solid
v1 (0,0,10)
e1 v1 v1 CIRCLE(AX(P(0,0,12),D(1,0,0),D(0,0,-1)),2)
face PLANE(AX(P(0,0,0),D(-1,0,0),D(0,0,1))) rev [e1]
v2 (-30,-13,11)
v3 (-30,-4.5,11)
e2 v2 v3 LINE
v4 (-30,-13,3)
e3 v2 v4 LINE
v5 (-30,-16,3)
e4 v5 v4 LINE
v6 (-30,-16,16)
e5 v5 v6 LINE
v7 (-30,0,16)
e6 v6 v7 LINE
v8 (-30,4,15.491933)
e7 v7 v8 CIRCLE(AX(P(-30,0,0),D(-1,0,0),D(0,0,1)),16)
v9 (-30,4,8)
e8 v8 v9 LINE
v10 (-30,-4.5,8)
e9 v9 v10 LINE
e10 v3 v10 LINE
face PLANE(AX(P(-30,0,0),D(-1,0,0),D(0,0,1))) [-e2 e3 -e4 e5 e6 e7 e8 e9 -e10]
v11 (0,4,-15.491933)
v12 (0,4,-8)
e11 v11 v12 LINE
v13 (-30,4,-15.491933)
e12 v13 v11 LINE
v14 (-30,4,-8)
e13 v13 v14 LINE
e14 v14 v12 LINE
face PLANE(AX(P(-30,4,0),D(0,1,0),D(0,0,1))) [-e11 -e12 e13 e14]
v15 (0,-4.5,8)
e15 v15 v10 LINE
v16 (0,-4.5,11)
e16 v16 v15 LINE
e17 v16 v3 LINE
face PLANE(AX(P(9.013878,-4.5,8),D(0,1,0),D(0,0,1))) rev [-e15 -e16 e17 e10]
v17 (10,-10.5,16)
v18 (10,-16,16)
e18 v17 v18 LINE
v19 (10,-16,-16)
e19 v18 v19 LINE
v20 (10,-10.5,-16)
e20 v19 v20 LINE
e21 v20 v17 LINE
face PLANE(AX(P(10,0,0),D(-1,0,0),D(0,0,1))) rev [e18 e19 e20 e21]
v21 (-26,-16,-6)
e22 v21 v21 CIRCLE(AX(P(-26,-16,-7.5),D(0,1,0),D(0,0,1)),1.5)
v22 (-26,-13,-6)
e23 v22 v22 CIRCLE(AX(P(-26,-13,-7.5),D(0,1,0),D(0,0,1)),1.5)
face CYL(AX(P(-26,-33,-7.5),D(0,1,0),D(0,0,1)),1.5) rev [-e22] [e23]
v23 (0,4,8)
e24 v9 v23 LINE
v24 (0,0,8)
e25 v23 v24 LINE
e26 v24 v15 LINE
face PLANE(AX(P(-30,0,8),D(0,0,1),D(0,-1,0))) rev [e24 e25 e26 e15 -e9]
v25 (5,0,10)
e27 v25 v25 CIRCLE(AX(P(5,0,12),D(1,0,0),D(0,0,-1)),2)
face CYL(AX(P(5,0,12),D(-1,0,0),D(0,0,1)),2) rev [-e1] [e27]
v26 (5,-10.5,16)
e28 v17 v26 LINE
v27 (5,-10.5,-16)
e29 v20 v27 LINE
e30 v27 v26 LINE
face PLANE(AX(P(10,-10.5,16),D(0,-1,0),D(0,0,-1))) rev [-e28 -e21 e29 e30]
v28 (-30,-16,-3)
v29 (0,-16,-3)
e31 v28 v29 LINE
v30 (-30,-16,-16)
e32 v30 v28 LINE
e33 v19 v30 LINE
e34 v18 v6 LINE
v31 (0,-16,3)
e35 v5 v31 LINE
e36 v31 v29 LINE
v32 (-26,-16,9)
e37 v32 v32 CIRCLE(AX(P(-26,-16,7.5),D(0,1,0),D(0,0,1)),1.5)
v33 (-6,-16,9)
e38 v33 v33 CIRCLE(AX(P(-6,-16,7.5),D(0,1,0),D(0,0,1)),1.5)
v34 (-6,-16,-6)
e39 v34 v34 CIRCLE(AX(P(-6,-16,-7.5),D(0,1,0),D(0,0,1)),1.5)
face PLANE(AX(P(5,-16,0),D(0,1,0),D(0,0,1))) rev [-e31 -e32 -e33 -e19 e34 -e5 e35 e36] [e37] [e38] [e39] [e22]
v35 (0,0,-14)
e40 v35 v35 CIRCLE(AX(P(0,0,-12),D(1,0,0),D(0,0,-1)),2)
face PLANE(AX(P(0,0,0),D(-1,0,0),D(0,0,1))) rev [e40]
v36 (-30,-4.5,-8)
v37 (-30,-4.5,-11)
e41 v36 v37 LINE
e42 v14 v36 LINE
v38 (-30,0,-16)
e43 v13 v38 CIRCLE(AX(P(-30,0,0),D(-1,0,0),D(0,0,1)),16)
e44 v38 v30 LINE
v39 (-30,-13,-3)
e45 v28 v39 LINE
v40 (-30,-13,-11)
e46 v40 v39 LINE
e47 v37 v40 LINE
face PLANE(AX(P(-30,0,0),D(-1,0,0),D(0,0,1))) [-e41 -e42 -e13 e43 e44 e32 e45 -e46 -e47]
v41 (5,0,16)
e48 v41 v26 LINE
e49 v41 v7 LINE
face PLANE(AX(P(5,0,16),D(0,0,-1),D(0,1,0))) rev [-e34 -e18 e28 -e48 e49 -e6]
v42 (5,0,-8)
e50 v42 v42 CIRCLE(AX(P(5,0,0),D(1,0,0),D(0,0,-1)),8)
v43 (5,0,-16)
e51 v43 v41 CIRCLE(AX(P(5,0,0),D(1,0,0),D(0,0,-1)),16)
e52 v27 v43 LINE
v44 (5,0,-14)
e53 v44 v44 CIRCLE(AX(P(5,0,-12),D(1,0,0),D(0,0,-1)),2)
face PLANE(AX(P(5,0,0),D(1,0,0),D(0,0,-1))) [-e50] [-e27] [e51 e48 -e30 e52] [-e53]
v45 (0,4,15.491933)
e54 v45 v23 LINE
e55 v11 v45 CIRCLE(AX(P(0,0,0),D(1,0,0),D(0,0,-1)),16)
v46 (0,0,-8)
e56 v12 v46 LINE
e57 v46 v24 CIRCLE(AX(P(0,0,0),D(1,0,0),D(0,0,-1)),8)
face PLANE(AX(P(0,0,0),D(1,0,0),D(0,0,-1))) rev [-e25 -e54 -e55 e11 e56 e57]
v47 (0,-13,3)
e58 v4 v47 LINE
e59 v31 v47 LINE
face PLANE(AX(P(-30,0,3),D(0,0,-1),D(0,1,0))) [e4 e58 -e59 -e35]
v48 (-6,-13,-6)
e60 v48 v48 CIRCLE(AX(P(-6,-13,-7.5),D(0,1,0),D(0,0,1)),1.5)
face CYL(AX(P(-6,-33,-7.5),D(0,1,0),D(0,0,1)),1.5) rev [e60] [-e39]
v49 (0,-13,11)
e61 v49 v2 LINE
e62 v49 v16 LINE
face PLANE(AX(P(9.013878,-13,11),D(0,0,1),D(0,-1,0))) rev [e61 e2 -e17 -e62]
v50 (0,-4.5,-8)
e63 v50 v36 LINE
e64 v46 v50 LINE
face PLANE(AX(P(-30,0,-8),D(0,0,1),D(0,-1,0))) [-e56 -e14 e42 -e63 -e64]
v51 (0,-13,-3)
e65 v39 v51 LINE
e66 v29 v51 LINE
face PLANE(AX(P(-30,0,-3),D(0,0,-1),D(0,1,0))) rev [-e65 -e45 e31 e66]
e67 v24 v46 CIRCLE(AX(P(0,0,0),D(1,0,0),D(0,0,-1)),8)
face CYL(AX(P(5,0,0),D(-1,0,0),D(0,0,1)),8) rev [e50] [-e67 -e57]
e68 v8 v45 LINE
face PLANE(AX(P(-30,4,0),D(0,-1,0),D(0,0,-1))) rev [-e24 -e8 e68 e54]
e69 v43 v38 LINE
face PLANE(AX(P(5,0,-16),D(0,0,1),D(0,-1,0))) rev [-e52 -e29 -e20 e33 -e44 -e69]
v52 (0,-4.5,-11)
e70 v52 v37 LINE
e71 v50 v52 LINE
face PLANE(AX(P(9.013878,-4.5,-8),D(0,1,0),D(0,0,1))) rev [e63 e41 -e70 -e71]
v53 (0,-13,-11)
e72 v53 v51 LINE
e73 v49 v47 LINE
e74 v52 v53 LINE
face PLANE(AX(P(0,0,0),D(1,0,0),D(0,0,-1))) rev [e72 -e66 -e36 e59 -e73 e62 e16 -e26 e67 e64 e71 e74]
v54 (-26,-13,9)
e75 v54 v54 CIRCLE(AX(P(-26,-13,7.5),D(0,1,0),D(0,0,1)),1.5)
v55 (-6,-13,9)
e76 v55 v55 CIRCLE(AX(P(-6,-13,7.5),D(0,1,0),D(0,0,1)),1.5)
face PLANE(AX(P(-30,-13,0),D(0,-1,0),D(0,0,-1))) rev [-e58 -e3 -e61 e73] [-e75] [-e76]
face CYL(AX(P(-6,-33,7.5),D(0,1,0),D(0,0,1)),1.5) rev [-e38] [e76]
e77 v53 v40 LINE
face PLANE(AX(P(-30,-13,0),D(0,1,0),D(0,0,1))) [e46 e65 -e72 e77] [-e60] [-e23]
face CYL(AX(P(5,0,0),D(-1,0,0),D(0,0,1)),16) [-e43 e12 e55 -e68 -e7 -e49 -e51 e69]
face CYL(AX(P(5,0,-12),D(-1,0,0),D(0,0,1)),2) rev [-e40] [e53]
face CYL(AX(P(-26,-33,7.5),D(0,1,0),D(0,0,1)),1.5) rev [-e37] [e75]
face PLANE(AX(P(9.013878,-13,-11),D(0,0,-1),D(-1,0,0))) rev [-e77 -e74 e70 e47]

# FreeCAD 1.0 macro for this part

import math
import FreeCAD as App
import Part
import Sketcher

V = App.Vector


def add_polygon(sketch, points):
    """Adds a closed chain of lines whose ends are joined by coincident constraints."""
    first, n = sketch.GeometryCount, len(points)
    for a, b in zip(points, points[1:] + points[:1]):
        sketch.addGeometry(Part.LineSegment(App.Vector(*a, 0), App.Vector(*b, 0)), False)
    for i in range(n):
        sketch.addConstraint(Sketcher.Constraint("Coincident", first + i, 2, first + (i + 1) % n, 1))

doc = App.newDocument("Part")
body = doc.addObject("PartDesign::Body", "Body")

# Sketch on YZ plane
sketch1 = doc.addObject("Sketcher::SketchObject", "Sketch")
body.addObject(sketch1)
sketch1.AttachmentSupport = (doc.YZ_Plane, [""])
sketch1.MapMode = "FlatFace"
sketch1.addGeometry(Part.LineSegment(V(0, 16, 0), V(-16, 16, 0)), False)
sketch1.addGeometry(Part.LineSegment(V(-16, 16, 0), V(-16, -16, 0)), False)
sketch1.addGeometry(Part.LineSegment(V(-16, -16, 0), V(0, -16, 0)), False)
sketch1.addGeometry(Part.ArcOfCircle(Part.Circle(V(0, 0, 0), V(0, 0, 1), 16), math.radians(-90), math.radians(90)), False)
sketch1.addGeometry(Part.Circle(V(0, 12, 0), V(0, 0, 1), 2), False)
sketch1.addGeometry(Part.Circle(V(0, 0, 0), V(0, 0, 1), 8), False)
sketch1.addGeometry(Part.Circle(V(0, -12, 0), V(0, 0, 1), 2), False)
sketch1.addConstraint(Sketcher.Constraint("Coincident", 0, 2, 1, 1))
sketch1.addConstraint(Sketcher.Constraint("Coincident", 1, 2, 2, 1))
sketch1.addConstraint(Sketcher.Constraint("Tangent", 2, 2, 3, 1))
sketch1.addConstraint(Sketcher.Constraint("Tangent", 3, 2, 0, 1))
sketch1.addConstraint(Sketcher.Constraint("Horizontal", 0))
sketch1.addConstraint(Sketcher.Constraint("Vertical", 1))
sketch1.addConstraint(Sketcher.Constraint("Horizontal", 2))
sketch1.addConstraint(Sketcher.Constraint("Coincident", 3, 3, -1, 1))
sketch1.addConstraint(Sketcher.Constraint("Coincident", 5, 3, -1, 1))
sketch1.addConstraint(Sketcher.Constraint("Equal", 4, 6))
sketch1.addConstraint(Sketcher.Constraint("Symmetric", 4, 3, 6, 3, -1, 1))
sketch1.addConstraint(Sketcher.Constraint("PointOnObject", 4, 3, -2))
sketch1.addConstraint(Sketcher.Constraint("Diameter", 4, 4.0))
sketch1.addConstraint(Sketcher.Constraint("Diameter", 5, 16.0))
sketch1.addConstraint(Sketcher.Constraint("Radius", 3, 16.0))
sketch1.addConstraint(Sketcher.Constraint("DistanceX", 0, 2, 0, 1, 16.0))
sketch1.addConstraint(Sketcher.Constraint("DistanceY", -1, 1, 4, 3, 12.0))
pad1 = doc.addObject("PartDesign::Pad", "Pad")
body.addObject(pad1)
pad1.Profile = sketch1
pad1.Length = 5

# Sketch on YZ plane
sketch2 = doc.addObject("Sketcher::SketchObject", "Sketch001")
body.addObject(sketch2)
sketch2.AttachmentSupport = (doc.YZ_Plane, [""])
sketch2.MapMode = "FlatFace"
sketch2.AttachmentOffset = App.Placement(V(0, 0, 5), App.Rotation())
add_polygon(sketch2, [(-10, 16), (-16, 16), (-16, -16), (-10, -16)])  # lines 0-3
sketch2.addConstraint(Sketcher.Constraint("Horizontal", 0))
sketch2.addConstraint(Sketcher.Constraint("Vertical", 1))
sketch2.addConstraint(Sketcher.Constraint("Horizontal", 2))
sketch2.addConstraint(Sketcher.Constraint("Vertical", 3))
sketch2.addConstraint(Sketcher.Constraint("DistanceY", 1, 2, 1, 1, 32.0))
sketch2.addConstraint(Sketcher.Constraint("DistanceX", 0, 2, 0, 1, 5.5))
sketch2.addConstraint(Sketcher.Constraint("DistanceX", 0, 2, -1, 1, 16.0))
sketch2.addConstraint(Sketcher.Constraint("DistanceY", -1, 1, 0, 2, 16.0))
pad2 = doc.addObject("PartDesign::Pad", "Pad001")
body.addObject(pad2)
pad2.Profile = sketch2
pad2.Length = 5

# Sketch on YZ plane
sketch3 = doc.addObject("Sketcher::SketchObject", "Sketch002")
body.addObject(sketch3)
sketch3.AttachmentSupport = (doc.YZ_Plane, [""])
sketch3.MapMode = "FlatFace"
sketch3.addGeometry(Part.LineSegment(V(4, -8, 0), V(4, -15.5, 0)), False)
sketch3.addGeometry(Part.ArcOfCircle(Part.Circle(V(0, 0, 0), V(0, 0, 1), 16), math.radians(-90), math.radians(-75.52)), False)
sketch3.addGeometry(Part.LineSegment(V(0, -16, 0), V(-16, -16, 0)), False)
sketch3.addGeometry(Part.LineSegment(V(-16, -16, 0), V(-16, -3, 0)), False)
sketch3.addGeometry(Part.LineSegment(V(-16, -3, 0), V(-13, -3, 0)), False)
sketch3.addGeometry(Part.LineSegment(V(-13, -3, 0), V(-13, -8, 0)), False)
sketch3.addGeometry(Part.LineSegment(V(-13, -8, 0), V(4, -8, 0)), False)
sketch3.addGeometry(Part.LineSegment(V(-13, 3, 0), V(-16, 3, 0)), False)
sketch3.addGeometry(Part.LineSegment(V(-16, 3, 0), V(-16, 16, 0)), False)
sketch3.addGeometry(Part.LineSegment(V(-16, 16, 0), V(0, 16, 0)), False)
sketch3.addGeometry(Part.ArcOfCircle(Part.Circle(V(0, 0, 0), V(0, 0, 1), 16), math.radians(75.52), math.radians(90)), False)
sketch3.addGeometry(Part.LineSegment(V(4, 15.5, 0), V(4, 8, 0)), False)
sketch3.addGeometry(Part.LineSegment(V(4, 8, 0), V(-13, 8, 0)), False)
sketch3.addGeometry(Part.LineSegment(V(-13, 8, 0), V(-13, 3, 0)), False)
sketch3.addConstraint(Sketcher.Constraint("Coincident", 0, 2, 1, 2))
sketch3.addConstraint(Sketcher.Constraint("Tangent", 1, 1, 2, 1))
sketch3.addConstraint(Sketcher.Constraint("Coincident", 2, 2, 3, 1))
sketch3.addConstraint(Sketcher.Constraint("Coincident", 3, 2, 4, 1))
sketch3.addConstraint(Sketcher.Constraint("Coincident", 4, 2, 5, 1))
sketch3.addConstraint(Sketcher.Constraint("Coincident", 5, 2, 6, 1))
sketch3.addConstraint(Sketcher.Constraint("Coincident", 6, 2, 0, 1))
sketch3.addConstraint(Sketcher.Constraint("Coincident", 7, 2, 8, 1))
sketch3.addConstraint(Sketcher.Constraint("Coincident", 8, 2, 9, 1))
sketch3.addConstraint(Sketcher.Constraint("Tangent", 9, 2, 10, 2))
sketch3.addConstraint(Sketcher.Constraint("Coincident", 10, 1, 11, 1))
sketch3.addConstraint(Sketcher.Constraint("Coincident", 11, 2, 12, 1))
sketch3.addConstraint(Sketcher.Constraint("Coincident", 12, 2, 13, 1))
sketch3.addConstraint(Sketcher.Constraint("Coincident", 13, 2, 7, 1))
sketch3.addConstraint(Sketcher.Constraint("Vertical", 0))
sketch3.addConstraint(Sketcher.Constraint("Horizontal", 2))
sketch3.addConstraint(Sketcher.Constraint("Vertical", 3))
sketch3.addConstraint(Sketcher.Constraint("Horizontal", 4))
sketch3.addConstraint(Sketcher.Constraint("Vertical", 5))
sketch3.addConstraint(Sketcher.Constraint("Horizontal", 6))
sketch3.addConstraint(Sketcher.Constraint("Horizontal", 7))
sketch3.addConstraint(Sketcher.Constraint("Vertical", 8))
sketch3.addConstraint(Sketcher.Constraint("Horizontal", 9))
sketch3.addConstraint(Sketcher.Constraint("Vertical", 11))
sketch3.addConstraint(Sketcher.Constraint("Horizontal", 12))
sketch3.addConstraint(Sketcher.Constraint("Vertical", 13))
sketch3.addConstraint(Sketcher.Constraint("Coincident", 1, 3, -1, 1))
sketch3.addConstraint(Sketcher.Constraint("Coincident", 10, 3, -1, 1))
sketch3.addConstraint(Sketcher.Constraint("Equal", 1, 10))
sketch3.addConstraint(Sketcher.Constraint("Symmetric", 3, 2, 7, 2, -1))
sketch3.addConstraint(Sketcher.Constraint("Symmetric", 6, 2, 11, 2, -1))
sketch3.addConstraint(Sketcher.Constraint("Vertical", 5, 2, 12, 2))
sketch3.addConstraint(Sketcher.Constraint("Radius", 1, 16.0))
sketch3.addConstraint(Sketcher.Constraint("DistanceX", 2, 2, 2, 1, 16.0))
sketch3.addConstraint(Sketcher.Constraint("DistanceX", 4, 1, 4, 2, 3.0))
sketch3.addConstraint(Sketcher.Constraint("DistanceX", 6, 1, 6, 2, 17.0))
sketch3.addConstraint(Sketcher.Constraint("DistanceY", 3, 1, 3, 2, 13.0))
sketch3.addConstraint(Sketcher.Constraint("DistanceY", 5, 2, 5, 1, 5.0))
pad3 = doc.addObject("PartDesign::Pad", "Pad002")
body.addObject(pad3)
pad3.Profile = sketch3
pad3.Length = 30
pad3.Reversed = True

# Sketch on XZ plane
sketch4 = doc.addObject("Sketcher::SketchObject", "Sketch003")
body.addObject(sketch4)
sketch4.AttachmentSupport = (doc.XZ_Plane, [""])
sketch4.MapMode = "FlatFace"
sketch4.AttachmentOffset = App.Placement(V(0, 0, 13), App.Rotation())
sketch4.addGeometry(Part.Circle(V(-6, 7.5, 0), V(0, 0, 1), 1.5), False)
sketch4.addGeometry(Part.Circle(V(-6, -7.5, 0), V(0, 0, 1), 1.5), False)
sketch4.addGeometry(Part.Circle(V(-26, -7.5, 0), V(0, 0, 1), 1.5), False)
sketch4.addGeometry(Part.Circle(V(-26, 7.5, 0), V(0, 0, 1), 1.5), False)
sketch4.addConstraint(Sketcher.Constraint("Equal", 0, 1))
sketch4.addConstraint(Sketcher.Constraint("Equal", 1, 2))
sketch4.addConstraint(Sketcher.Constraint("Equal", 2, 3))
sketch4.addConstraint(Sketcher.Constraint("Symmetric", 0, 3, 1, 3, -1))
sketch4.addConstraint(Sketcher.Constraint("Symmetric", 2, 3, 3, 3, -1))
sketch4.addConstraint(Sketcher.Constraint("Horizontal", 1, 3, 2, 3))
sketch4.addConstraint(Sketcher.Constraint("Diameter", 0, 3.0))
sketch4.addConstraint(Sketcher.Constraint("DistanceX", 0, 3, -1, 1, 6.0))
sketch4.addConstraint(Sketcher.Constraint("DistanceX", 2, 3, -1, 1, 26.0))
sketch4.addConstraint(Sketcher.Constraint("DistanceY", 1, 3, 0, 3, 15.0))
pocket1 = doc.addObject("PartDesign::Pocket", "Pocket")
body.addObject(pocket1)
pocket1.Profile = sketch4
pocket1.Length = 20
pocket1.Reversed = True

# Sketch on YZ plane
sketch5 = doc.addObject("Sketcher::SketchObject", "Sketch004")
body.addObject(sketch5)
sketch5.AttachmentSupport = (doc.YZ_Plane, [""])
sketch5.MapMode = "FlatFace"
sketch5.AttachmentOffset = App.Placement(V(0, 0, -30), App.Rotation())
add_polygon(sketch5, [(-4.5, -11), (-13, -11), (-13, -8), (-4.5, -8)])  # lines 0-3
add_polygon(sketch5, [(-4.5, 8), (-13, 8), (-13, 11), (-4.5, 11)])  # lines 4-7
sketch5.addConstraint(Sketcher.Constraint("Horizontal", 0))
sketch5.addConstraint(Sketcher.Constraint("Vertical", 1))
sketch5.addConstraint(Sketcher.Constraint("Horizontal", 2))
sketch5.addConstraint(Sketcher.Constraint("Vertical", 3))
sketch5.addConstraint(Sketcher.Constraint("Horizontal", 4))
sketch5.addConstraint(Sketcher.Constraint("Vertical", 5))
sketch5.addConstraint(Sketcher.Constraint("Horizontal", 6))
sketch5.addConstraint(Sketcher.Constraint("Vertical", 7))
sketch5.addConstraint(Sketcher.Constraint("Symmetric", 1, 2, 4, 2, -1))
sketch5.addConstraint(Sketcher.Constraint("Symmetric", 3, 2, 6, 2, -1))
sketch5.addConstraint(Sketcher.Constraint("DistanceY", 1, 1, 1, 2, 3.0))
sketch5.addConstraint(Sketcher.Constraint("DistanceX", 0, 2, 0, 1, 8.5))
sketch5.addConstraint(Sketcher.Constraint("DistanceX", 0, 2, -1, 1, 13.0))
sketch5.addConstraint(Sketcher.Constraint("DistanceY", 0, 2, -1, 1, 11.0))
pocket2 = doc.addObject("PartDesign::Pocket", "Pocket001")
body.addObject(pocket2)
pocket2.Profile = sketch5
pocket2.Length = 30
pocket2.Reversed = True

doc.recompute()
